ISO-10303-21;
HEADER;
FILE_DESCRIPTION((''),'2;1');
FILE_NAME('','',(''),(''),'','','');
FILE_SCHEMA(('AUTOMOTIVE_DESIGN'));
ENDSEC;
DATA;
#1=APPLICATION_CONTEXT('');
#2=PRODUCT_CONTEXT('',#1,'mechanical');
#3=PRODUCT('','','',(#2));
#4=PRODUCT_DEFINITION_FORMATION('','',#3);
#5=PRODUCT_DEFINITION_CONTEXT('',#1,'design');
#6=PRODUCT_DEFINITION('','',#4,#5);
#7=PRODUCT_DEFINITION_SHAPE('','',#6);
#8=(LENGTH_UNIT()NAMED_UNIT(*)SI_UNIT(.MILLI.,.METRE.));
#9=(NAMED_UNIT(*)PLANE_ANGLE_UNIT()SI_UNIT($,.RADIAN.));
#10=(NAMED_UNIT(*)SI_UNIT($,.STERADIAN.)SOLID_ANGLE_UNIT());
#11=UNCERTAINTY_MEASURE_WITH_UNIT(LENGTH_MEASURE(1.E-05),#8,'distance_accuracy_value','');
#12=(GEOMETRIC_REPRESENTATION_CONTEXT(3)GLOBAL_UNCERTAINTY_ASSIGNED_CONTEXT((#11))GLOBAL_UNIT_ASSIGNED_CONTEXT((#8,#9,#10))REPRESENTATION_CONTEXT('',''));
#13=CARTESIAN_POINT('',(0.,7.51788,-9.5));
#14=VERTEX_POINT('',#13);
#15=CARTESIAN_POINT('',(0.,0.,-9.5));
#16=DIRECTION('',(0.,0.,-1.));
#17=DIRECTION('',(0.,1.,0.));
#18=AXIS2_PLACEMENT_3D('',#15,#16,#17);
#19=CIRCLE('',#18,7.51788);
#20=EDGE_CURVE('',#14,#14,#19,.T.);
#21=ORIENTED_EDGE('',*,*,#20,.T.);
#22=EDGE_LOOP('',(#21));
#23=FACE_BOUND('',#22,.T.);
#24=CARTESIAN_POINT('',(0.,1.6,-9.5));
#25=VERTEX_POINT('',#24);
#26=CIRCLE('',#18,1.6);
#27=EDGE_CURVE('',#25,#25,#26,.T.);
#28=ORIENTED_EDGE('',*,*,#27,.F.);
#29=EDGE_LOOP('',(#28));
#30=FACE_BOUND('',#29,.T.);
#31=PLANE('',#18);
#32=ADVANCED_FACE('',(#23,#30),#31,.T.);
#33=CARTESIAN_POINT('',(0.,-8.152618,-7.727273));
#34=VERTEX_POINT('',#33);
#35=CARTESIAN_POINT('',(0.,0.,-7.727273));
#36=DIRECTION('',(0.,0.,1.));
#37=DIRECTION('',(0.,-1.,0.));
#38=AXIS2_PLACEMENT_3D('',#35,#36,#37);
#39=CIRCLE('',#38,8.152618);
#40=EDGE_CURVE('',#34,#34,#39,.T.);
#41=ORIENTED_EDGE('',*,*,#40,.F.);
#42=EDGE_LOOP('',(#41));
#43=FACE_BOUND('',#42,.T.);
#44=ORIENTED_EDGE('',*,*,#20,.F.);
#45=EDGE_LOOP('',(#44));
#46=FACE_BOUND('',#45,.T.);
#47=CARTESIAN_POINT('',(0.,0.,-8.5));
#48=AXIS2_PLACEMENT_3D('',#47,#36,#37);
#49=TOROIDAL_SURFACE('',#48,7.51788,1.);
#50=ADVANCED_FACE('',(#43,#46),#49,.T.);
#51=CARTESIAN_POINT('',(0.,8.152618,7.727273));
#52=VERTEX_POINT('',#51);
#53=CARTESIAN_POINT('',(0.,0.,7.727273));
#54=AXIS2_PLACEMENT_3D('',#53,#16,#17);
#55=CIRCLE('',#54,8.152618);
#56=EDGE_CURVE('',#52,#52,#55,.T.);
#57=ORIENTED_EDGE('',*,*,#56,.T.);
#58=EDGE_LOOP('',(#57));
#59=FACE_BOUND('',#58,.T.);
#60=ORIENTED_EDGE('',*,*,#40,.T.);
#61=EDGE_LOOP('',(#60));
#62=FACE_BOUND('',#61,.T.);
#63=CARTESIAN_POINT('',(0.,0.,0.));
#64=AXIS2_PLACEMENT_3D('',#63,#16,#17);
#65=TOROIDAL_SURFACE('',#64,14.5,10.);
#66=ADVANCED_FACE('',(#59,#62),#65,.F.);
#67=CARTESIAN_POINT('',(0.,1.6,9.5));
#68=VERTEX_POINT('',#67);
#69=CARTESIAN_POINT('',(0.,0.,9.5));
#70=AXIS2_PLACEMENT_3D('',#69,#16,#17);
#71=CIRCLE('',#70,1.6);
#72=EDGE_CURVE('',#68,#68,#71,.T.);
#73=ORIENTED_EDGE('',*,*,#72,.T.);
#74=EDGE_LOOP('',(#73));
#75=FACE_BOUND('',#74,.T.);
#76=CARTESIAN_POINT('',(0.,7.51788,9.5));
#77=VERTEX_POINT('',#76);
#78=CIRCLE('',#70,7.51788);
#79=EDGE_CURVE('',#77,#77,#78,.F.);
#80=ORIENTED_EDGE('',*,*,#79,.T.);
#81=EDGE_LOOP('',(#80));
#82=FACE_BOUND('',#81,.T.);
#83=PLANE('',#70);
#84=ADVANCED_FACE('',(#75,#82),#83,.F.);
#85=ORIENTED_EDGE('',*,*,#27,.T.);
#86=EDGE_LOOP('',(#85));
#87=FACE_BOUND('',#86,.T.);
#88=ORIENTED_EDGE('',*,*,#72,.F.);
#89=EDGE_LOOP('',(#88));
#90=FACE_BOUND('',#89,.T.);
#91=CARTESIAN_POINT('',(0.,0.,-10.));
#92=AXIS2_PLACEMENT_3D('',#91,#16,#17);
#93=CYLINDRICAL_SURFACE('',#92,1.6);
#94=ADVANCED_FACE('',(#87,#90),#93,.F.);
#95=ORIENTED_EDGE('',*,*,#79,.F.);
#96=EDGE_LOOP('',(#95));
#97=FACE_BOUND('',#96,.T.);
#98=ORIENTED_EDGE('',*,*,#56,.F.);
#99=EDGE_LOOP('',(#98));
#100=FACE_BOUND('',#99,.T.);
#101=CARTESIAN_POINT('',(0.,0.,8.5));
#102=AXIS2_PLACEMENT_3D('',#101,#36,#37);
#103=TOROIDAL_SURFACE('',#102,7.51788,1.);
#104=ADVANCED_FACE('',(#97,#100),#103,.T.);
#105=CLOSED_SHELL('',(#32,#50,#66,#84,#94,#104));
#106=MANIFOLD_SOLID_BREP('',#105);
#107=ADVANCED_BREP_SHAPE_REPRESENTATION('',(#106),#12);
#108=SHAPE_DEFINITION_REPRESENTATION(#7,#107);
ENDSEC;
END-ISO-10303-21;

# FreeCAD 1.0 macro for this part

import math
import FreeCAD as App
import Part
import Sketcher
from FreeCAD import Vector
Q = App.Units.Quantity


def edges_at(feature, points):
    """Names of the edges that pass closest to the given points."""
    edges = feature.Shape.Edges
    near = lambda p: min(range(len(edges)), key=lambda i: edges[i].distToShape(Part.Vertex(*p))[0])
    return sorted({f"Edge{near(p) + 1}" for p in points})

doc = App.newDocument("Part")
params = doc.addObject("Spreadsheet::Sheet", "Params")
for row, (alias, value) in enumerate([
    ("sketch1_radius", "10 mm"),
    ("sketch1_height", "19 mm"),
    ("revolution_angle", "360 deg"),
    ("fillet_radius", "1 mm"),
], start=1):
    params.set(f"A{row}", alias)
    params.set(f"B{row}", "=" + value)
    params.setAlias(f"B{row}", alias)

body = doc.addObject("PartDesign::Body", "Body")

# Sketch on YZ plane
sketch1 = body.newObject("Sketcher::SketchObject", "Sketch")
sketch1.AttachmentSupport = (doc.getObject("YZ_Plane"), [""])
sketch1.MapMode = "FlatFace"
sketch1.addGeometry([
    Part.LineSegment(Vector(1.6, -9.5, 0), Vector(11.377501, -9.5, 0)),
    Part.ArcOfCircle(Part.Circle(Vector(14.5, 0, 0), Vector(0, 0, 1), 10), math.radians(108.194872), math.radians(251.805128)),
    Part.LineSegment(Vector(11.377501, 9.5, 0), Vector(1.6, 9.5, 0)),
    Part.LineSegment(Vector(1.6, 9.5, 0), Vector(1.6, -9.5, 0)),
], False)
sketch1.addConstraint([
    Sketcher.Constraint("Coincident", 0, 2, 1, 2),
    Sketcher.Constraint("Coincident", 1, 1, 2, 1),
    Sketcher.Constraint("Coincident", 2, 2, 3, 1),
    Sketcher.Constraint("Coincident", 3, 2, 0, 1),
    Sketcher.Constraint("Horizontal", 0),
    Sketcher.Constraint("Horizontal", 2),
    Sketcher.Constraint("Vertical", 3),
    Sketcher.Constraint("Symmetric", 0, 2, 1, 1, -1),
    Sketcher.Constraint("Radius", 1, Q("10 mm")),
    Sketcher.Constraint("DistanceY", 3, 2, 3, 1, Q("19 mm")),
    Sketcher.Constraint("DistanceX", -1, 1, 1, 3, Q("14.5 mm")),
    Sketcher.Constraint("DistanceX", -1, 1, 2, 2, Q("1.6 mm")),
])
sketch1.setExpression("Constraints[8]", "Params.sketch1_radius")
sketch1.setExpression("Constraints[9]", "Params.sketch1_height")
revolution = body.newObject("PartDesign::Revolution", "Revolution")
revolution.Profile = sketch1
revolution.ReferenceAxis = (sketch1, ["V_Axis"])
revolution.setExpression("Angle", "Params.revolution_angle")
doc.recompute()

fillet = body.newObject("PartDesign::Fillet", "Fillet")
fillet.Base = (revolution, edges_at(revolution, [(0, -11.378, 9.5), (0, -11.378, -9.5)]))
fillet.setExpression("Radius", "Params.fillet_radius")

doc.recompute()
